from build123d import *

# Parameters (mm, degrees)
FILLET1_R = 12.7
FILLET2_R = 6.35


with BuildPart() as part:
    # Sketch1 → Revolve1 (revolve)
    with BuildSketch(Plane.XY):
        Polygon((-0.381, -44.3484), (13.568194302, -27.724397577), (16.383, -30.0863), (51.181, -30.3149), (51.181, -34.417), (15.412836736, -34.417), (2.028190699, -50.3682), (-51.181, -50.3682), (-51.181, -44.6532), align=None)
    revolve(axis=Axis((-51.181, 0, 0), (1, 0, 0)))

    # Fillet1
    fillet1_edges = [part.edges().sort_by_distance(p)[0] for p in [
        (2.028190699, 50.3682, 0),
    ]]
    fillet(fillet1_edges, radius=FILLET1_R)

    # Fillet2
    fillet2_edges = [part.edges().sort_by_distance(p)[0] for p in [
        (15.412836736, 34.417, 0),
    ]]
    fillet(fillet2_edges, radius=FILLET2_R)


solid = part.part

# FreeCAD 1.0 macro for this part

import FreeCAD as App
import Part
import Sketcher
from FreeCAD import Vector
Q = App.Units.Quantity


def edges_at(feature, points):
    """Names of the edges that pass closest to the given points."""
    edges = feature.Shape.Edges
    near = lambda p: min(range(len(edges)), key=lambda i: edges[i].distToShape(Part.Vertex(*p))[0])
    return sorted({f"Edge{near(p) + 1}" for p in points})


def add_polygon(sketch, points):
    """Adds a closed chain of lines whose ends are joined by coincident constraints."""
    first, n = sketch.GeometryCount, len(points)
    for a, b in zip(points, points[1:] + points[:1]):
        sketch.addGeometry(Part.LineSegment(App.Vector(*a, 0), App.Vector(*b, 0)), False)
    for i in range(n):
        sketch.addConstraint(Sketcher.Constraint("Coincident", first + i, 2, first + (i + 1) % n, 1))

doc = App.newDocument("Part")
params = doc.addObject("Spreadsheet::Sheet", "Params")
for row, (alias, value) in enumerate([
    ("sketch1_height", "0.225 in"),
    ("revolution_angle", "360 deg"),
    ("fillet_radius", "0.5 in"),
    ("fillet2_radius", "0.25 in"),
], start=1):
    params.set(f"A{row}", alias)
    params.set(f"B{row}", "=" + value)
    params.setAlias(f"B{row}", alias)

body = doc.addObject("PartDesign::Body", "Body")

# Sketch on XY plane
sketch1 = doc.addObject("Sketcher::SketchObject", "Sketch")
body.addObject(sketch1)
sketch1.AttachmentSupport = (doc.XY_Plane, [""])
sketch1.MapMode = "FlatFace"
add_polygon(sketch1, [(13.568194, -27.724398), (-0.381, -44.3484), (-51.181, -44.6532), (-51.181, -50.3682), (2.028191, -50.3682), (15.412837, -34.417), (51.181, -34.417), (51.181, -30.3149), (16.383, -30.0863)])  # lines 0-8
sketch1.addConstraint([
    Sketcher.Constraint("Vertical", 2),
    Sketcher.Constraint("Horizontal", 3),
    Sketcher.Constraint("Horizontal", 5),
    Sketcher.Constraint("Vertical", 6),
    Sketcher.Constraint("Parallel", 0, 4),
    Sketcher.Constraint("Perpendicular", 4, 8),
    Sketcher.Constraint("Angle", 0, Q("-130 deg")),
    Sketcher.Constraint("DistanceX", 1, 2, 0, 2, Q("2 in")),
    Sketcher.Constraint("DistanceY", 2, 2, 2, 1, Q("0.225 in")),
    Sketcher.Constraint("DistanceX", 0, 2, 5, 2, Q("2.03 in")),
    Sketcher.Constraint("DistanceX", 0, 2, 7, 2, Q("0.66 in")),
    Sketcher.Constraint("DistanceY", 6, 1, 6, 2, Q("0.1615 in")),
    Sketcher.Constraint("DistanceX", 0, 2, -1, 1, Q("0.015 in")),
    Sketcher.Constraint("DistanceY", 0, 2, -1, 1, Q("1.746 in")),
    Sketcher.Constraint("DistanceY", 1, 2, -1, 1, Q("1.758 in")),
    Sketcher.Constraint("DistanceY", 4, 2, -1, 1, Q("1.355 in")),
    Sketcher.Constraint("DistanceY", 6, 2, 7, 2, Q("0.009 in")),
    Sketcher.Constraint("DistanceX", 3, 1, 3, 2, Q("53.209191 mm")),
])
sketch1.setExpression("Constraints[17]", "Params.sketch1_height")
revolution = doc.addObject("PartDesign::Revolution", "Revolution")
body.addObject(revolution)
revolution.Profile = sketch1
revolution.ReferenceAxis = (sketch1, ["H_Axis"])
revolution.setExpression("Angle", "Params.revolution_angle")
doc.recompute()

fillet = doc.addObject("PartDesign::Fillet", "Fillet")
body.addObject(fillet)
fillet.Base = (revolution, edges_at(revolution, [(2.028, 50.368, 0)]))
fillet.setExpression("Radius", "Params.fillet_radius")
doc.recompute()

fillet2 = doc.addObject("PartDesign::Fillet", "Fillet001")
body.addObject(fillet2)
fillet2.Base = (fillet, edges_at(fillet, [(15.413, 34.417, 0)]))
fillet2.setExpression("Radius", "Params.fillet2_radius")

doc.recompute()
